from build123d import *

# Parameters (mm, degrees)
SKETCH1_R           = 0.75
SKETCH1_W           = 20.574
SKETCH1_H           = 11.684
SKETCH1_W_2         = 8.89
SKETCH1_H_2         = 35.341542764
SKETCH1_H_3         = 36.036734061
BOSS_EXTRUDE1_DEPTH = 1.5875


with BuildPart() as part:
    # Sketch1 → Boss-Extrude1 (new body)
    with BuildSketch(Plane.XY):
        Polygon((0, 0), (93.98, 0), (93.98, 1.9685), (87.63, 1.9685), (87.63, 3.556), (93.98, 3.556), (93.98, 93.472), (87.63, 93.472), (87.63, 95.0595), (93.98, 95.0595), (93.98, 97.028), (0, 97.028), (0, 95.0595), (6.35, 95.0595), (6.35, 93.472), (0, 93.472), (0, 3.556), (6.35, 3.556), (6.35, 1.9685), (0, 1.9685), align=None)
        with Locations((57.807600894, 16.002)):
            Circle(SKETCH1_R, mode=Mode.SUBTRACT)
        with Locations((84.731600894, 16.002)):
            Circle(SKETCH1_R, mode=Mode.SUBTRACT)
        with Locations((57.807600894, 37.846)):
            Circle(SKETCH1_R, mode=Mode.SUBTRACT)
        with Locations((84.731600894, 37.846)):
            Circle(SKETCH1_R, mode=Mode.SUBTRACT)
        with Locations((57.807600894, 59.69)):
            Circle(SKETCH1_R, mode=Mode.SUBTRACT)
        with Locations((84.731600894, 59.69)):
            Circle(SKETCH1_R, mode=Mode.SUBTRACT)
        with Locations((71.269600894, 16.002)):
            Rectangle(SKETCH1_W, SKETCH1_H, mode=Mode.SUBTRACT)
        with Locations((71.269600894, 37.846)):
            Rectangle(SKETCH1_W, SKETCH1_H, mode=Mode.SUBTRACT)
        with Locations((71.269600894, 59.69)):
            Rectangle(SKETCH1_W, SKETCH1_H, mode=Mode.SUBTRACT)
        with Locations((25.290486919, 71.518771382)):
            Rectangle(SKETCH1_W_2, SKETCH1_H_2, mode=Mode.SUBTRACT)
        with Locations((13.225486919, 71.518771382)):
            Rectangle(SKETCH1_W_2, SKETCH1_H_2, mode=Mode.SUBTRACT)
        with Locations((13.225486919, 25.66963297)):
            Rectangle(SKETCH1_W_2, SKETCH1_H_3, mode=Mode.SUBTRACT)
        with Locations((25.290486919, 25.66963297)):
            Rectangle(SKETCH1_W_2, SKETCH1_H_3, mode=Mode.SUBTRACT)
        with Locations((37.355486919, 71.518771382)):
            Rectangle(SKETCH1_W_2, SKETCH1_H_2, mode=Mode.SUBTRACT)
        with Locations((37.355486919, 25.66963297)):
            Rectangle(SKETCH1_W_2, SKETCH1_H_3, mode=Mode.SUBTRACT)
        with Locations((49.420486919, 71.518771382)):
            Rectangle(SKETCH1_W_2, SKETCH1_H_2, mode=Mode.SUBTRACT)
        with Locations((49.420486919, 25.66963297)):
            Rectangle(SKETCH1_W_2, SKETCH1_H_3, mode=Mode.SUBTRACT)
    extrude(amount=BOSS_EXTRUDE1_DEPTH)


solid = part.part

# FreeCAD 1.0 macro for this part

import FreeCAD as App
import Part
import Sketcher
Q = App.Units.Quantity


def add_polygon(sketch, points):
    """Adds a closed chain of lines whose ends are joined by coincident constraints."""
    first, n = sketch.GeometryCount, len(points)
    for a, b in zip(points, points[1:] + points[:1]):
        sketch.addGeometry(Part.LineSegment(App.Vector(*a, 0), App.Vector(*b, 0)), False)
    for i in range(n):
        sketch.addConstraint(Sketcher.Constraint("Coincident", first + i, 2, first + (i + 1) % n, 1))

doc = App.newDocument("Part")
body = doc.addObject("PartDesign::Body", "Body")

sketch1 = body.newObject("Sketcher::SketchObject", "Sketch")
sketch1.AttachmentSupport = (doc.getObject("XY_Plane"), [""])
sketch1.MapMode = "FlatFace"
add_polygon(sketch1, [(0, 0), (93.98, 0), (93.98, 1.9685), (87.63, 1.9685), (87.63, 3.556), (93.98, 3.556), (93.98, 93.472), (87.63, 93.472), (87.63, 95.0595), (93.98, 95.0595), (93.98, 97.028), (0, 97.028), (0, 95.0595), (6.35, 95.0595), (6.35, 93.472), (0, 93.472), (0, 3.556), (6.35, 3.556), (6.35, 1.9685), (0, 1.9685)])
add_polygon(sketch1, [(17.670487, 7.651266), (8.780487, 7.651266), (8.780487, 43.688), (17.670487, 43.688)])
add_polygon(sketch1, [(29.735487, 7.651266), (20.845487, 7.651266), (20.845487, 43.688), (29.735487, 43.688)])
add_polygon(sketch1, [(41.800487, 7.651266), (32.910487, 7.651266), (32.910487, 43.688), (41.800487, 43.688)])
sketch1.addGeometry(Part.Circle(App.Vector(57.807601, 16.002, 0), App.Vector(0, 0, 1), 0.75), False)
add_polygon(sketch1, [(53.865487, 7.651266), (44.975487, 7.651266), (44.975487, 43.688), (53.865487, 43.688)])
add_polygon(sketch1, [(81.556601, 10.16), (60.982601, 10.16), (60.982601, 21.844), (81.556601, 21.844)])
sketch1.addGeometry(Part.Circle(App.Vector(84.731601, 16.002, 0), App.Vector(0, 0, 1), 0.75), False)
sketch1.addGeometry(Part.Circle(App.Vector(57.807601, 37.846, 0), App.Vector(0, 0, 1), 0.75), False)
add_polygon(sketch1, [(81.556601, 32.004), (60.982601, 32.004), (60.982601, 43.688), (81.556601, 43.688)])
sketch1.addGeometry(Part.Circle(App.Vector(84.731601, 37.846, 0), App.Vector(0, 0, 1), 0.75), False)
add_polygon(sketch1, [(17.670487, 53.848), (8.780487, 53.848), (8.780487, 89.189543), (17.670487, 89.189543)])
add_polygon(sketch1, [(29.735487, 53.848), (20.845487, 53.848), (20.845487, 89.189543), (29.735487, 89.189543)])
add_polygon(sketch1, [(41.800487, 53.848), (32.910487, 53.848), (32.910487, 89.189543), (41.800487, 89.189543)])
sketch1.addGeometry(Part.Circle(App.Vector(57.807601, 59.69, 0), App.Vector(0, 0, 1), 0.75), False)
add_polygon(sketch1, [(81.556601, 53.848), (60.982601, 53.848), (60.982601, 65.532), (81.556601, 65.532)])
sketch1.addGeometry(Part.Circle(App.Vector(84.731601, 59.69, 0), App.Vector(0, 0, 1), 0.75), False)
add_polygon(sketch1, [(53.865487, 53.848), (44.975487, 53.848), (44.975487, 89.189543), (53.865487, 89.189543)])
sketch1.addConstraint(Sketcher.Constraint("Horizontal", 0))
sketch1.addConstraint(Sketcher.Constraint("Vertical", 1))
sketch1.addConstraint(Sketcher.Constraint("Horizontal", 2))
sketch1.addConstraint(Sketcher.Constraint("Vertical", 3))
sketch1.addConstraint(Sketcher.Constraint("Horizontal", 4))
sketch1.addConstraint(Sketcher.Constraint("Vertical", 5))
sketch1.addConstraint(Sketcher.Constraint("Horizontal", 6))
sketch1.addConstraint(Sketcher.Constraint("Vertical", 7))
sketch1.addConstraint(Sketcher.Constraint("Horizontal", 8))
sketch1.addConstraint(Sketcher.Constraint("Vertical", 9))
sketch1.addConstraint(Sketcher.Constraint("Horizontal", 10))
sketch1.addConstraint(Sketcher.Constraint("Vertical", 11))
sketch1.addConstraint(Sketcher.Constraint("Horizontal", 12))
sketch1.addConstraint(Sketcher.Constraint("Vertical", 13))
sketch1.addConstraint(Sketcher.Constraint("Horizontal", 14))
sketch1.addConstraint(Sketcher.Constraint("Vertical", 15))
sketch1.addConstraint(Sketcher.Constraint("Horizontal", 16))
sketch1.addConstraint(Sketcher.Constraint("Vertical", 17))
sketch1.addConstraint(Sketcher.Constraint("Horizontal", 18))
sketch1.addConstraint(Sketcher.Constraint("Vertical", 19))
sketch1.addConstraint(Sketcher.Constraint("Horizontal", 20))
sketch1.addConstraint(Sketcher.Constraint("Vertical", 21))
sketch1.addConstraint(Sketcher.Constraint("Horizontal", 22))
sketch1.addConstraint(Sketcher.Constraint("Vertical", 23))
sketch1.addConstraint(Sketcher.Constraint("Horizontal", 24))
sketch1.addConstraint(Sketcher.Constraint("Vertical", 25))
sketch1.addConstraint(Sketcher.Constraint("Horizontal", 26))
sketch1.addConstraint(Sketcher.Constraint("Vertical", 27))
sketch1.addConstraint(Sketcher.Constraint("Horizontal", 28))
sketch1.addConstraint(Sketcher.Constraint("Vertical", 29))
sketch1.addConstraint(Sketcher.Constraint("Horizontal", 30))
sketch1.addConstraint(Sketcher.Constraint("Vertical", 31))
sketch1.addConstraint(Sketcher.Constraint("Horizontal", 33))
sketch1.addConstraint(Sketcher.Constraint("Vertical", 34))
sketch1.addConstraint(Sketcher.Constraint("Horizontal", 35))
sketch1.addConstraint(Sketcher.Constraint("Vertical", 36))
sketch1.addConstraint(Sketcher.Constraint("Horizontal", 37))
sketch1.addConstraint(Sketcher.Constraint("Vertical", 38))
sketch1.addConstraint(Sketcher.Constraint("Horizontal", 39))
sketch1.addConstraint(Sketcher.Constraint("Vertical", 40))
sketch1.addConstraint(Sketcher.Constraint("Horizontal", 43))
sketch1.addConstraint(Sketcher.Constraint("Vertical", 44))
sketch1.addConstraint(Sketcher.Constraint("Horizontal", 45))
sketch1.addConstraint(Sketcher.Constraint("Vertical", 46))
sketch1.addConstraint(Sketcher.Constraint("Horizontal", 48))
sketch1.addConstraint(Sketcher.Constraint("Vertical", 49))
sketch1.addConstraint(Sketcher.Constraint("Horizontal", 50))
sketch1.addConstraint(Sketcher.Constraint("Vertical", 51))
sketch1.addConstraint(Sketcher.Constraint("Horizontal", 52))
sketch1.addConstraint(Sketcher.Constraint("Vertical", 53))
sketch1.addConstraint(Sketcher.Constraint("Horizontal", 54))
sketch1.addConstraint(Sketcher.Constraint("Vertical", 55))
sketch1.addConstraint(Sketcher.Constraint("Horizontal", 56))
sketch1.addConstraint(Sketcher.Constraint("Vertical", 57))
sketch1.addConstraint(Sketcher.Constraint("Horizontal", 58))
sketch1.addConstraint(Sketcher.Constraint("Vertical", 59))
sketch1.addConstraint(Sketcher.Constraint("Horizontal", 61))
sketch1.addConstraint(Sketcher.Constraint("Vertical", 62))
sketch1.addConstraint(Sketcher.Constraint("Horizontal", 63))
sketch1.addConstraint(Sketcher.Constraint("Vertical", 64))
sketch1.addConstraint(Sketcher.Constraint("Horizontal", 66))
sketch1.addConstraint(Sketcher.Constraint("Vertical", 67))
sketch1.addConstraint(Sketcher.Constraint("Horizontal", 68))
sketch1.addConstraint(Sketcher.Constraint("Vertical", 69))
sketch1.addConstraint(Sketcher.Constraint("Coincident", 19, 2, -1, 1))
sketch1.addConstraint(Sketcher.Constraint("Equal", 32, 41))
sketch1.addConstraint(Sketcher.Constraint("Equal", 41, 42))
sketch1.addConstraint(Sketcher.Constraint("Equal", 42, 47))
sketch1.addConstraint(Sketcher.Constraint("Equal", 47, 60))
sketch1.addConstraint(Sketcher.Constraint("Equal", 60, 65))
sketch1.addConstraint(Sketcher.Constraint("PointOnObject", 10, 2, -2))
sketch1.addConstraint(Sketcher.Constraint("PointOnObject", 14, 2, -2))
sketch1.addConstraint(Sketcher.Constraint("Horizontal", 32, 3, 41, 3))
sketch1.addConstraint(Sketcher.Constraint("Horizontal", 42, 3, 47, 3))
sketch1.addConstraint(Sketcher.Constraint("Horizontal", 60, 3, 65, 3))
sketch1.addConstraint(Sketcher.Constraint("Horizontal", 8, 2, 11, 2))
sketch1.addConstraint(Sketcher.Constraint("Horizontal", 6, 2, 13, 2))
sketch1.addConstraint(Sketcher.Constraint("Horizontal", 4, 2, 15, 2))
sketch1.addConstraint(Sketcher.Constraint("Horizontal", 2, 2, 17, 2))
sketch1.addConstraint(Sketcher.Constraint("Horizontal", 23, 2, 24, 2))
sketch1.addConstraint(Sketcher.Constraint("Horizontal", 22, 2, 25, 2))
sketch1.addConstraint(Sketcher.Constraint("Horizontal", 27, 2, 28, 2))
sketch1.addConstraint(Sketcher.Constraint("Horizontal", 26, 2, 29, 2))
sketch1.addConstraint(Sketcher.Constraint("Horizontal", 31, 2, 33, 2))
sketch1.addConstraint(Sketcher.Constraint("Horizontal", 30, 2, 34, 2))
sketch1.addConstraint(Sketcher.Constraint("Horizontal", 35, 2, 44, 2))
sketch1.addConstraint(Sketcher.Constraint("Horizontal", 51, 2, 52, 2))
sketch1.addConstraint(Sketcher.Constraint("Horizontal", 50, 2, 53, 2))
sketch1.addConstraint(Sketcher.Constraint("Horizontal", 55, 2, 56, 2))
sketch1.addConstraint(Sketcher.Constraint("Horizontal", 54, 2, 57, 2))
sketch1.addConstraint(Sketcher.Constraint("Horizontal", 59, 2, 61, 2))
sketch1.addConstraint(Sketcher.Constraint("Horizontal", 64, 2, 66, 2))
sketch1.addConstraint(Sketcher.Constraint("Horizontal", 58, 2, 67, 2))
sketch1.addConstraint(Sketcher.Constraint("Vertical", 32, 3, 42, 3))
sketch1.addConstraint(Sketcher.Constraint("Vertical", 41, 3, 47, 3))
sketch1.addConstraint(Sketcher.Constraint("Vertical", 42, 3, 60, 3))
sketch1.addConstraint(Sketcher.Constraint("Vertical", 47, 3, 65, 3))
sketch1.addConstraint(Sketcher.Constraint("Vertical", 1, 2, 4, 2))
sketch1.addConstraint(Sketcher.Constraint("Vertical", 3, 2, 6, 2))
sketch1.addConstraint(Sketcher.Constraint("Vertical", 5, 2, 8, 2))
sketch1.addConstraint(Sketcher.Constraint("Vertical", 13, 2, 16, 2))
sketch1.addConstraint(Sketcher.Constraint("Vertical", 38, 2, 43, 2))
sketch1.addConstraint(Sketcher.Constraint("Vertical", 40, 2, 45, 2))
sketch1.addConstraint(Sketcher.Constraint("Vertical", 21, 2, 48, 2))
sketch1.addConstraint(Sketcher.Constraint("Vertical", 23, 2, 50, 2))
sketch1.addConstraint(Sketcher.Constraint("Vertical", 25, 2, 52, 2))
sketch1.addConstraint(Sketcher.Constraint("Vertical", 27, 2, 54, 2))
sketch1.addConstraint(Sketcher.Constraint("Vertical", 29, 2, 56, 2))
sketch1.addConstraint(Sketcher.Constraint("Vertical", 31, 2, 58, 2))
sketch1.addConstraint(Sketcher.Constraint("Vertical", 44, 2, 61, 2))
sketch1.addConstraint(Sketcher.Constraint("Vertical", 46, 2, 63, 2))
sketch1.addConstraint(Sketcher.Constraint("Vertical", 34, 2, 66, 2))
sketch1.addConstraint(Sketcher.Constraint("Vertical", 36, 2, 68, 2))
sketch1.addConstraint(Sketcher.Constraint("Equal", 8, 12))
sketch1.addConstraint(Sketcher.Constraint("Equal", 22, 24))
sketch1.addConstraint(Sketcher.Constraint("Equal", 26, 28))
sketch1.addConstraint(Sketcher.Constraint("Equal", 30, 33))
sketch1.addConstraint(Sketcher.Constraint("Equal", 3, 7))
sketch1.addConstraint(Sketcher.Constraint("Equal", 1, 9))
sketch1.addConstraint(Sketcher.Constraint("Equal", 40, 44))
sketch1.addConstraint(Sketcher.Constraint("Equal", 46, 62))
sketch1.addConstraint(Sketcher.Constraint("DistanceX", 0, 1, 0, 2, Q("3.7 in")))
sketch1.addConstraint(Sketcher.Constraint("DistanceX", 2, 2, 2, 1, Q("0.25 in")))
sketch1.addConstraint(Sketcher.Constraint("DistanceX", 20, 2, 20, 1, Q("0.35 in")))
sketch1.addConstraint(Sketcher.Constraint("DistanceX", 37, 2, 37, 1, Q("0.81 in")))
sketch1.addConstraint(Sketcher.Constraint("DistanceY", 5, 1, 5, 2, Q("3.54 in")))
sketch1.addConstraint(Sketcher.Constraint("DistanceY", 38, 1, 38, 2, Q("0.46 in")))
sketch1.addConstraint(Sketcher.Constraint("DistanceY", -1, 1, 37, 2, Q("0.4 in")))
sketch1.addConstraint(Sketcher.Constraint("Diameter", 32, 1.5))
sketch1.addConstraint(Sketcher.Constraint("DistanceY", 3, 1, 3, 2, Q("0.0625 in")))
sketch1.addConstraint(Sketcher.Constraint("DistanceY", -1, 1, 32, 3, Q("0.63 in")))
sketch1.addConstraint(Sketcher.Constraint("DistanceY", -1, 1, 42, 3, Q("1.49 in")))
sketch1.addConstraint(Sketcher.Constraint("DistanceY", -1, 1, 60, 3, Q("2.35 in")))
sketch1.addConstraint(Sketcher.Constraint("DistanceY", -1, 1, 3, 2, Q("0.14 in")))
sketch1.addConstraint(Sketcher.Constraint("DistanceY", -1, 1, 21, 2, Q("1.72 in")))
sketch1.addConstraint(Sketcher.Constraint("DistanceY", -1, 1, 48, 2, Q("2.12 in")))
sketch1.addConstraint(Sketcher.Constraint("DistanceX", -1, 1, 32, 3, 57.807601))
sketch1.addConstraint(Sketcher.Constraint("DistanceX", -1, 1, 41, 3, 84.731601))
sketch1.addConstraint(Sketcher.Constraint("DistanceX", -1, 1, 37, 2, 60.982601))
sketch1.addConstraint(Sketcher.Constraint("DistanceY", 21, 1, 21, 2, 36.036734))
sketch1.addConstraint(Sketcher.Constraint("DistanceY", 49, 1, 49, 2, 35.341543))
sketch1.addConstraint(Sketcher.Constraint("DistanceX", -1, 1, 20, 2, 8.780487))
sketch1.addConstraint(Sketcher.Constraint("DistanceX", -1, 1, 24, 2, 20.845487))
sketch1.addConstraint(Sketcher.Constraint("DistanceX", -1, 1, 28, 2, 32.910487))
sketch1.addConstraint(Sketcher.Constraint("DistanceX", -1, 1, 33, 2, 44.975487))
pad1 = body.newObject("PartDesign::Pad", "Pad")
pad1.Profile = sketch1
pad1.Length = Q("0.0625 in")

doc.recompute()
